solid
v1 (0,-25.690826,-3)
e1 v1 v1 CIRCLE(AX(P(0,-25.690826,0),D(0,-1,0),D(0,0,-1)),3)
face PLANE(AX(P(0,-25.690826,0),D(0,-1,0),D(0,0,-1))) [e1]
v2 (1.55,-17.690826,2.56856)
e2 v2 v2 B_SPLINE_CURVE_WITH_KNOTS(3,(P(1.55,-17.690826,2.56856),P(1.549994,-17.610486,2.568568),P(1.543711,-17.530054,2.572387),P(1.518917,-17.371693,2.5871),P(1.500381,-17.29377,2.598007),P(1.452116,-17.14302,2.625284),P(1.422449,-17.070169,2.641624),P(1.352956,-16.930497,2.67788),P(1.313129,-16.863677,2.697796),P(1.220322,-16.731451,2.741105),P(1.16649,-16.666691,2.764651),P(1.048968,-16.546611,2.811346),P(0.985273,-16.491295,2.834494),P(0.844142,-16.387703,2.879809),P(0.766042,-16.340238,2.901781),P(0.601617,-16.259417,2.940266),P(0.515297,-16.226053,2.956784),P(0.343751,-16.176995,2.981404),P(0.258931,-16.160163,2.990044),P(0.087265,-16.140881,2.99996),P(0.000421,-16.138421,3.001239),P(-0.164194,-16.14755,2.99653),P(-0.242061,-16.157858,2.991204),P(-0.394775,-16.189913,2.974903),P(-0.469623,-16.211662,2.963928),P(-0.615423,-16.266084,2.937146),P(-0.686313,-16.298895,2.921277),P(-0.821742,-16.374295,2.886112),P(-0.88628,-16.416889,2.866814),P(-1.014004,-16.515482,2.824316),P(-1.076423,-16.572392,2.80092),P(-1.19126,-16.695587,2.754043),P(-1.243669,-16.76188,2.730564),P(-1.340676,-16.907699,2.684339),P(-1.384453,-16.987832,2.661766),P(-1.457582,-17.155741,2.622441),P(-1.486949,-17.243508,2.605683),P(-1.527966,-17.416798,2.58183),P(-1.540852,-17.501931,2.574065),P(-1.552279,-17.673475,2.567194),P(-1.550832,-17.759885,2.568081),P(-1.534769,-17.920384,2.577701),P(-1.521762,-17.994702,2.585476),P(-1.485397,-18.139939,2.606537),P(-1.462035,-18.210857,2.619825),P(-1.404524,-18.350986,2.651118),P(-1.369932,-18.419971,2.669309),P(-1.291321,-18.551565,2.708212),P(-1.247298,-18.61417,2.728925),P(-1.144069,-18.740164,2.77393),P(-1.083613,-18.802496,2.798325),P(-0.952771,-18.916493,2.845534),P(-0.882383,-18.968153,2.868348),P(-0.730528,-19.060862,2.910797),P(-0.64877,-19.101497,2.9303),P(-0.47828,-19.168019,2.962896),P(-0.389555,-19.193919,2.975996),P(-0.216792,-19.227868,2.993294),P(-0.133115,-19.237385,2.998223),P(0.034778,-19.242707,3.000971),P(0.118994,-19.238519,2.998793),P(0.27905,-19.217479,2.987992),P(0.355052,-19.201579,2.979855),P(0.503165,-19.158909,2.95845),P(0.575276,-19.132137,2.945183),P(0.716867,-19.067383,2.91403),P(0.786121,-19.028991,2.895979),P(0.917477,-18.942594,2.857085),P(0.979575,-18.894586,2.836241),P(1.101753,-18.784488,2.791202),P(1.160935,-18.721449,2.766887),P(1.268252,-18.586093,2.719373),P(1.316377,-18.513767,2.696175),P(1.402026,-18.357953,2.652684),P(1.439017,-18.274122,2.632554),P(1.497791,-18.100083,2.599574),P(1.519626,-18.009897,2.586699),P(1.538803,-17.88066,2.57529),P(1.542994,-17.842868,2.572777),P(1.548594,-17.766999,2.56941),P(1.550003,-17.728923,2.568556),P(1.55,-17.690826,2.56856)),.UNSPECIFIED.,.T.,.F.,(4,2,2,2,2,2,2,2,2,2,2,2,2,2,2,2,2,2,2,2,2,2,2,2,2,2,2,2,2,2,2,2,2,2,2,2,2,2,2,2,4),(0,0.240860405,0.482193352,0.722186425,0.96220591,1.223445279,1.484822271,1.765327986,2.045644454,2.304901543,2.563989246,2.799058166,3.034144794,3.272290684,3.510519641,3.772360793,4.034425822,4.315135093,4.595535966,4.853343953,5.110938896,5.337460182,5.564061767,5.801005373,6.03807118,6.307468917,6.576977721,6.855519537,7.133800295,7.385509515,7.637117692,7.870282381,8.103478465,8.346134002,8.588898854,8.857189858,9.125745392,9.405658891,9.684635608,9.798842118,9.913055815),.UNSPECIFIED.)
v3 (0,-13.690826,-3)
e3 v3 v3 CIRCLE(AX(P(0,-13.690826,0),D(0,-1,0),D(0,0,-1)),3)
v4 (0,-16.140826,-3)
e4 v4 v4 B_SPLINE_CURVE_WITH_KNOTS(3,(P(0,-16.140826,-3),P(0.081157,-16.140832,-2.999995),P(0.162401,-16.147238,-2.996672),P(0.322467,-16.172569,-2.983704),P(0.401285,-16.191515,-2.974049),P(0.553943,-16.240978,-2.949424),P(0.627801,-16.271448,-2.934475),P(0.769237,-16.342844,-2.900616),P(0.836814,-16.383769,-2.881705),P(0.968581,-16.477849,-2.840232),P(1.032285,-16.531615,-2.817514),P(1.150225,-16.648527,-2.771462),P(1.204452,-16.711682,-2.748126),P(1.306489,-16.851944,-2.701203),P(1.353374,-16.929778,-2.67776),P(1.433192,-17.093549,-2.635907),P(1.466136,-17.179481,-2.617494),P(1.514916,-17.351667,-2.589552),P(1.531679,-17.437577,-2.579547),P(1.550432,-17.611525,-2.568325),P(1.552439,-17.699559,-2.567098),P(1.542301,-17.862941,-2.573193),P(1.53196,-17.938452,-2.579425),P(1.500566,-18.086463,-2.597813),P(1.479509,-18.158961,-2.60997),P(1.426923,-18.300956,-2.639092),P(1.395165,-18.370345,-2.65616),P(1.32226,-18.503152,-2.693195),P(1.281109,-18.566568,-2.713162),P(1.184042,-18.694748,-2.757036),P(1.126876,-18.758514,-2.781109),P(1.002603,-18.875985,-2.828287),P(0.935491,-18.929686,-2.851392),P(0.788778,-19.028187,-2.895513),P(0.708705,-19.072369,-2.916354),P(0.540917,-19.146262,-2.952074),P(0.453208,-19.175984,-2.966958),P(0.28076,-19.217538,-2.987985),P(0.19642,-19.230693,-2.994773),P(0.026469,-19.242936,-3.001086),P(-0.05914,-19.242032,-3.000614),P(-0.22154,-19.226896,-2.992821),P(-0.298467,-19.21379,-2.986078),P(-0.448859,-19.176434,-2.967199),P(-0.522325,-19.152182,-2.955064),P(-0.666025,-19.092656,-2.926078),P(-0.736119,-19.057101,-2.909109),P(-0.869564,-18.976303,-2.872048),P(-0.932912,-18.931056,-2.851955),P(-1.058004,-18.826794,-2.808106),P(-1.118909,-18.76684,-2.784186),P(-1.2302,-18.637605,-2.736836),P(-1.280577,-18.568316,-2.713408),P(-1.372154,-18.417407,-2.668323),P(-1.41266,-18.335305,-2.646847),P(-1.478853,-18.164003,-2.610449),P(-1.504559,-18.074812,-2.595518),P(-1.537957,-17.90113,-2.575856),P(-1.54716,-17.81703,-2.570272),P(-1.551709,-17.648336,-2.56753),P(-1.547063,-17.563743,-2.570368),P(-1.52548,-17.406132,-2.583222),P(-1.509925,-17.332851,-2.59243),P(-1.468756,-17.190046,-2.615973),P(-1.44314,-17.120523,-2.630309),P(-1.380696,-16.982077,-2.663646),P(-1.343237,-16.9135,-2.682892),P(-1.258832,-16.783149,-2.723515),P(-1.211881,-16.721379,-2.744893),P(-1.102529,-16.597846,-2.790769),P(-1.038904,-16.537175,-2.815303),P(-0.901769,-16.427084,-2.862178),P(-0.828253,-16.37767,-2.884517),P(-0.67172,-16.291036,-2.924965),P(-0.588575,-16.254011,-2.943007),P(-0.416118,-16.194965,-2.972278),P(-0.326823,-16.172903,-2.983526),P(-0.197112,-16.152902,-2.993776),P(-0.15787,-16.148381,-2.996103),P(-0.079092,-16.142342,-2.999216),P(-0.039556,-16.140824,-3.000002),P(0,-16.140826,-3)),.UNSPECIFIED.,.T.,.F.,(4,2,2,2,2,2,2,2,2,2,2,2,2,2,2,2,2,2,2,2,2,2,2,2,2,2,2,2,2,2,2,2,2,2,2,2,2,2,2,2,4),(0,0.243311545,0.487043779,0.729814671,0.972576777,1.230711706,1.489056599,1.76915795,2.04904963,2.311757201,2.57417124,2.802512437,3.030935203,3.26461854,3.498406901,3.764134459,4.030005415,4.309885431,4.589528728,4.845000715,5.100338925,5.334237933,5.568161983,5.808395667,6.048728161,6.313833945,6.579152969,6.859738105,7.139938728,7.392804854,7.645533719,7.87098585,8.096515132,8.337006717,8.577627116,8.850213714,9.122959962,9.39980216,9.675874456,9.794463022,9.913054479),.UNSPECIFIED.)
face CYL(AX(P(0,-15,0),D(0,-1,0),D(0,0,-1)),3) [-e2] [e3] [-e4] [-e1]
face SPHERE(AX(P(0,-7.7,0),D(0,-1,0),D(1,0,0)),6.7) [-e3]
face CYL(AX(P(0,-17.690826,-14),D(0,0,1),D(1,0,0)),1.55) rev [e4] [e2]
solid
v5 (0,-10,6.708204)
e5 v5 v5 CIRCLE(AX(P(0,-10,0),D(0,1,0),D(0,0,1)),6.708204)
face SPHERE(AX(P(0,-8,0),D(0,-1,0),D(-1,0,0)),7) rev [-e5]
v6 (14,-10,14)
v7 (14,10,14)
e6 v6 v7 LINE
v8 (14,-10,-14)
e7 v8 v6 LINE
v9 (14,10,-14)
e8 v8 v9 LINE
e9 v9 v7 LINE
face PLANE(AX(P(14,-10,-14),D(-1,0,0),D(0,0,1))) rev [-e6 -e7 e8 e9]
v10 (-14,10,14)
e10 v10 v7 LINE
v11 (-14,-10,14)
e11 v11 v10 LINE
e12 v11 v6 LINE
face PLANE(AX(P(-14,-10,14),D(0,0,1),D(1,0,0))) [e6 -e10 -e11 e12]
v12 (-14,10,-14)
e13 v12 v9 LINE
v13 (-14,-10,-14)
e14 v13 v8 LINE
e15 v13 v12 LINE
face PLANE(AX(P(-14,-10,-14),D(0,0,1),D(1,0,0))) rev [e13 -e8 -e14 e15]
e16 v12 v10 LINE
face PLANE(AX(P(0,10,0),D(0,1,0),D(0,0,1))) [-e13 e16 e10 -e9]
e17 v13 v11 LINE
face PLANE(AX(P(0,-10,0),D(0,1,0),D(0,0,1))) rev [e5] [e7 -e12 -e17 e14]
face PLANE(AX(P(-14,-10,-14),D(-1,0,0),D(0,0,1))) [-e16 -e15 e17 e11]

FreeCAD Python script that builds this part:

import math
import FreeCAD as App
import Part
import Sketcher
from FreeCAD import Vector
Q = App.Units.Quantity

doc = App.newDocument("Part")
body = doc.addObject("PartDesign::Body", "Body")

# Sketch on XZ plane
sketch1 = doc.addObject("Sketcher::SketchObject", "Sketch")
body.addObject(sketch1)
sketch1.AttachmentSupport = (doc.XZ_Plane, [""])
sketch1.MapMode = "FlatFace"
sketch1.addGeometry([
    Part.LineSegment(Vector(-14, -14, 0), Vector(-14, 14, 0)),
    Part.LineSegment(Vector(-14, 14, 0), Vector(14, 14, 0)),
    Part.LineSegment(Vector(14, 14, 0), Vector(14, -14, 0)),
    Part.LineSegment(Vector(14, -14, 0), Vector(-14, -14, 0)),
], False)
sketch1.addConstraint([
    Sketcher.Constraint("Coincident", 0, 2, 1, 1),
    Sketcher.Constraint("Coincident", 1, 2, 2, 1),
    Sketcher.Constraint("Coincident", 2, 2, 3, 1),
    Sketcher.Constraint("Coincident", 3, 2, 0, 1),
    Sketcher.Constraint("Vertical", 0),
    Sketcher.Constraint("Horizontal", 1),
    Sketcher.Constraint("Vertical", 2),
    Sketcher.Constraint("Horizontal", 3),
    Sketcher.Constraint("Symmetric", 0, 2, 2, 2, -1, 1),
    Sketcher.Constraint("Equal", 3, 0),
    Sketcher.Constraint("DistanceX", 1, 1, 1, 2, Q("28 mm")),
])
pad1 = doc.addObject("PartDesign::Pad", "Pad")
body.addObject(pad1)
pad1.Profile = sketch1
pad1.Length = 20
pad1.Midplane = True

# Sketch on XY plane
sketch2 = doc.addObject("Sketcher::SketchObject", "Sketch001")
body.addObject(sketch2)
sketch2.AttachmentSupport = (doc.XY_Plane, [""])
sketch2.MapMode = "FlatFace"
sketch2.addGeometry([
    Part.LineSegment(Vector(0, -1, 0), Vector(0, -15, 0)),
    Part.ArcOfCircle(Part.Circle(Vector(0, -8, 0), Vector(0, 0, 1), 7), math.radians(-90), math.radians(90)),
], False)
sketch2.addConstraint([
    Sketcher.Constraint("Coincident", 0, 1, 1, 2),
    Sketcher.Constraint("Coincident", 1, 1, 0, 2),
    Sketcher.Constraint("Vertical", 0),
    Sketcher.Constraint("PointOnObject", 1, 3, -2),
    Sketcher.Constraint("PointOnObject", 0, 1, -2),
    Sketcher.Constraint("Radius", 1, Q("7 mm")),
    Sketcher.Constraint("DistanceY", 1, 3, -1, 1, Q("8 mm")),
])
groove = doc.addObject("PartDesign::Groove", "Groove")
body.addObject(groove)
groove.Profile = sketch2
groove.ReferenceAxis = (sketch2, ["V_Axis"])
groove.Angle = 360
body2 = doc.addObject("PartDesign::Body", "Body001")

# Sketch on XY plane
sketch3 = doc.addObject("Sketcher::SketchObject", "Sketch002")
body2.addObject(sketch3)
sketch3.AttachmentSupport = (doc.getObject("XY_Plane001"), [""])
sketch3.MapMode = "FlatFace"
sketch3.addGeometry([
    Part.LineSegment(Vector(0, -1, 0), Vector(0, -25.7, 0)),
    Part.LineSegment(Vector(0, -25.7, 0), Vector(3, -25.7, 0)),
    Part.LineSegment(Vector(3, -25.7, 0), Vector(3, -13.7, 0)),
    Part.ArcOfCircle(Part.Circle(Vector(0, -7.7, 0), Vector(0, 0, 1), 6.7), math.radians(-63), math.radians(90)),
], False)
sketch3.addConstraint([
    Sketcher.Constraint("Coincident", 0, 2, 1, 1),
    Sketcher.Constraint("Coincident", 1, 2, 2, 1),
    Sketcher.Constraint("Coincident", 2, 2, 3, 1),
    Sketcher.Constraint("Coincident", 3, 2, 0, 1),
    Sketcher.Constraint("Vertical", 0),
    Sketcher.Constraint("Horizontal", 1),
    Sketcher.Constraint("Vertical", 2),
    Sketcher.Constraint("PointOnObject", 3, 3, -2),
    Sketcher.Constraint("PointOnObject", 0, 2, -2),
    Sketcher.Constraint("Radius", 3, Q("6.7 mm")),
    Sketcher.Constraint("DistanceX", 1, 1, 1, 2, Q("3 mm")),
    Sketcher.Constraint("DistanceY", 2, 1, 2, 2, Q("12 mm")),
    Sketcher.Constraint("DistanceY", 3, 2, -1, 1, Q("1 mm")),
])
revolution = doc.addObject("PartDesign::Revolution", "Revolution")
body2.addObject(revolution)
revolution.Profile = sketch3
revolution.ReferenceAxis = (sketch3, ["V_Axis"])
revolution.Angle = 360

# Sketch on XY plane
sketch4 = doc.addObject("Sketcher::SketchObject", "Sketch003")
body2.addObject(sketch4)
sketch4.AttachmentSupport = (doc.getObject("XY_Plane001"), [""])
sketch4.MapMode = "FlatFace"
sketch4.AttachmentOffset = App.Placement(Vector(0, 0, 14), App.Rotation())
sketch4.addGeometry(Part.Circle(Vector(0, -17.7, 0), Vector(0, 0, 1), 1.6), False)
sketch4.addConstraint([
    Sketcher.Constraint("PointOnObject", 0, 3, -2),
    Sketcher.Constraint("Diameter", 0, Q("3.1 mm")),
    Sketcher.Constraint("DistanceY", 0, 3, -1, 1, Q("17.690826 mm")),
])
pocket1 = doc.addObject("PartDesign::Pocket", "Pocket")
body2.addObject(pocket1)
pocket1.Profile = sketch4
pocket1.Type = "ThroughAll"
pocket1.Midplane = True

doc.recompute()
